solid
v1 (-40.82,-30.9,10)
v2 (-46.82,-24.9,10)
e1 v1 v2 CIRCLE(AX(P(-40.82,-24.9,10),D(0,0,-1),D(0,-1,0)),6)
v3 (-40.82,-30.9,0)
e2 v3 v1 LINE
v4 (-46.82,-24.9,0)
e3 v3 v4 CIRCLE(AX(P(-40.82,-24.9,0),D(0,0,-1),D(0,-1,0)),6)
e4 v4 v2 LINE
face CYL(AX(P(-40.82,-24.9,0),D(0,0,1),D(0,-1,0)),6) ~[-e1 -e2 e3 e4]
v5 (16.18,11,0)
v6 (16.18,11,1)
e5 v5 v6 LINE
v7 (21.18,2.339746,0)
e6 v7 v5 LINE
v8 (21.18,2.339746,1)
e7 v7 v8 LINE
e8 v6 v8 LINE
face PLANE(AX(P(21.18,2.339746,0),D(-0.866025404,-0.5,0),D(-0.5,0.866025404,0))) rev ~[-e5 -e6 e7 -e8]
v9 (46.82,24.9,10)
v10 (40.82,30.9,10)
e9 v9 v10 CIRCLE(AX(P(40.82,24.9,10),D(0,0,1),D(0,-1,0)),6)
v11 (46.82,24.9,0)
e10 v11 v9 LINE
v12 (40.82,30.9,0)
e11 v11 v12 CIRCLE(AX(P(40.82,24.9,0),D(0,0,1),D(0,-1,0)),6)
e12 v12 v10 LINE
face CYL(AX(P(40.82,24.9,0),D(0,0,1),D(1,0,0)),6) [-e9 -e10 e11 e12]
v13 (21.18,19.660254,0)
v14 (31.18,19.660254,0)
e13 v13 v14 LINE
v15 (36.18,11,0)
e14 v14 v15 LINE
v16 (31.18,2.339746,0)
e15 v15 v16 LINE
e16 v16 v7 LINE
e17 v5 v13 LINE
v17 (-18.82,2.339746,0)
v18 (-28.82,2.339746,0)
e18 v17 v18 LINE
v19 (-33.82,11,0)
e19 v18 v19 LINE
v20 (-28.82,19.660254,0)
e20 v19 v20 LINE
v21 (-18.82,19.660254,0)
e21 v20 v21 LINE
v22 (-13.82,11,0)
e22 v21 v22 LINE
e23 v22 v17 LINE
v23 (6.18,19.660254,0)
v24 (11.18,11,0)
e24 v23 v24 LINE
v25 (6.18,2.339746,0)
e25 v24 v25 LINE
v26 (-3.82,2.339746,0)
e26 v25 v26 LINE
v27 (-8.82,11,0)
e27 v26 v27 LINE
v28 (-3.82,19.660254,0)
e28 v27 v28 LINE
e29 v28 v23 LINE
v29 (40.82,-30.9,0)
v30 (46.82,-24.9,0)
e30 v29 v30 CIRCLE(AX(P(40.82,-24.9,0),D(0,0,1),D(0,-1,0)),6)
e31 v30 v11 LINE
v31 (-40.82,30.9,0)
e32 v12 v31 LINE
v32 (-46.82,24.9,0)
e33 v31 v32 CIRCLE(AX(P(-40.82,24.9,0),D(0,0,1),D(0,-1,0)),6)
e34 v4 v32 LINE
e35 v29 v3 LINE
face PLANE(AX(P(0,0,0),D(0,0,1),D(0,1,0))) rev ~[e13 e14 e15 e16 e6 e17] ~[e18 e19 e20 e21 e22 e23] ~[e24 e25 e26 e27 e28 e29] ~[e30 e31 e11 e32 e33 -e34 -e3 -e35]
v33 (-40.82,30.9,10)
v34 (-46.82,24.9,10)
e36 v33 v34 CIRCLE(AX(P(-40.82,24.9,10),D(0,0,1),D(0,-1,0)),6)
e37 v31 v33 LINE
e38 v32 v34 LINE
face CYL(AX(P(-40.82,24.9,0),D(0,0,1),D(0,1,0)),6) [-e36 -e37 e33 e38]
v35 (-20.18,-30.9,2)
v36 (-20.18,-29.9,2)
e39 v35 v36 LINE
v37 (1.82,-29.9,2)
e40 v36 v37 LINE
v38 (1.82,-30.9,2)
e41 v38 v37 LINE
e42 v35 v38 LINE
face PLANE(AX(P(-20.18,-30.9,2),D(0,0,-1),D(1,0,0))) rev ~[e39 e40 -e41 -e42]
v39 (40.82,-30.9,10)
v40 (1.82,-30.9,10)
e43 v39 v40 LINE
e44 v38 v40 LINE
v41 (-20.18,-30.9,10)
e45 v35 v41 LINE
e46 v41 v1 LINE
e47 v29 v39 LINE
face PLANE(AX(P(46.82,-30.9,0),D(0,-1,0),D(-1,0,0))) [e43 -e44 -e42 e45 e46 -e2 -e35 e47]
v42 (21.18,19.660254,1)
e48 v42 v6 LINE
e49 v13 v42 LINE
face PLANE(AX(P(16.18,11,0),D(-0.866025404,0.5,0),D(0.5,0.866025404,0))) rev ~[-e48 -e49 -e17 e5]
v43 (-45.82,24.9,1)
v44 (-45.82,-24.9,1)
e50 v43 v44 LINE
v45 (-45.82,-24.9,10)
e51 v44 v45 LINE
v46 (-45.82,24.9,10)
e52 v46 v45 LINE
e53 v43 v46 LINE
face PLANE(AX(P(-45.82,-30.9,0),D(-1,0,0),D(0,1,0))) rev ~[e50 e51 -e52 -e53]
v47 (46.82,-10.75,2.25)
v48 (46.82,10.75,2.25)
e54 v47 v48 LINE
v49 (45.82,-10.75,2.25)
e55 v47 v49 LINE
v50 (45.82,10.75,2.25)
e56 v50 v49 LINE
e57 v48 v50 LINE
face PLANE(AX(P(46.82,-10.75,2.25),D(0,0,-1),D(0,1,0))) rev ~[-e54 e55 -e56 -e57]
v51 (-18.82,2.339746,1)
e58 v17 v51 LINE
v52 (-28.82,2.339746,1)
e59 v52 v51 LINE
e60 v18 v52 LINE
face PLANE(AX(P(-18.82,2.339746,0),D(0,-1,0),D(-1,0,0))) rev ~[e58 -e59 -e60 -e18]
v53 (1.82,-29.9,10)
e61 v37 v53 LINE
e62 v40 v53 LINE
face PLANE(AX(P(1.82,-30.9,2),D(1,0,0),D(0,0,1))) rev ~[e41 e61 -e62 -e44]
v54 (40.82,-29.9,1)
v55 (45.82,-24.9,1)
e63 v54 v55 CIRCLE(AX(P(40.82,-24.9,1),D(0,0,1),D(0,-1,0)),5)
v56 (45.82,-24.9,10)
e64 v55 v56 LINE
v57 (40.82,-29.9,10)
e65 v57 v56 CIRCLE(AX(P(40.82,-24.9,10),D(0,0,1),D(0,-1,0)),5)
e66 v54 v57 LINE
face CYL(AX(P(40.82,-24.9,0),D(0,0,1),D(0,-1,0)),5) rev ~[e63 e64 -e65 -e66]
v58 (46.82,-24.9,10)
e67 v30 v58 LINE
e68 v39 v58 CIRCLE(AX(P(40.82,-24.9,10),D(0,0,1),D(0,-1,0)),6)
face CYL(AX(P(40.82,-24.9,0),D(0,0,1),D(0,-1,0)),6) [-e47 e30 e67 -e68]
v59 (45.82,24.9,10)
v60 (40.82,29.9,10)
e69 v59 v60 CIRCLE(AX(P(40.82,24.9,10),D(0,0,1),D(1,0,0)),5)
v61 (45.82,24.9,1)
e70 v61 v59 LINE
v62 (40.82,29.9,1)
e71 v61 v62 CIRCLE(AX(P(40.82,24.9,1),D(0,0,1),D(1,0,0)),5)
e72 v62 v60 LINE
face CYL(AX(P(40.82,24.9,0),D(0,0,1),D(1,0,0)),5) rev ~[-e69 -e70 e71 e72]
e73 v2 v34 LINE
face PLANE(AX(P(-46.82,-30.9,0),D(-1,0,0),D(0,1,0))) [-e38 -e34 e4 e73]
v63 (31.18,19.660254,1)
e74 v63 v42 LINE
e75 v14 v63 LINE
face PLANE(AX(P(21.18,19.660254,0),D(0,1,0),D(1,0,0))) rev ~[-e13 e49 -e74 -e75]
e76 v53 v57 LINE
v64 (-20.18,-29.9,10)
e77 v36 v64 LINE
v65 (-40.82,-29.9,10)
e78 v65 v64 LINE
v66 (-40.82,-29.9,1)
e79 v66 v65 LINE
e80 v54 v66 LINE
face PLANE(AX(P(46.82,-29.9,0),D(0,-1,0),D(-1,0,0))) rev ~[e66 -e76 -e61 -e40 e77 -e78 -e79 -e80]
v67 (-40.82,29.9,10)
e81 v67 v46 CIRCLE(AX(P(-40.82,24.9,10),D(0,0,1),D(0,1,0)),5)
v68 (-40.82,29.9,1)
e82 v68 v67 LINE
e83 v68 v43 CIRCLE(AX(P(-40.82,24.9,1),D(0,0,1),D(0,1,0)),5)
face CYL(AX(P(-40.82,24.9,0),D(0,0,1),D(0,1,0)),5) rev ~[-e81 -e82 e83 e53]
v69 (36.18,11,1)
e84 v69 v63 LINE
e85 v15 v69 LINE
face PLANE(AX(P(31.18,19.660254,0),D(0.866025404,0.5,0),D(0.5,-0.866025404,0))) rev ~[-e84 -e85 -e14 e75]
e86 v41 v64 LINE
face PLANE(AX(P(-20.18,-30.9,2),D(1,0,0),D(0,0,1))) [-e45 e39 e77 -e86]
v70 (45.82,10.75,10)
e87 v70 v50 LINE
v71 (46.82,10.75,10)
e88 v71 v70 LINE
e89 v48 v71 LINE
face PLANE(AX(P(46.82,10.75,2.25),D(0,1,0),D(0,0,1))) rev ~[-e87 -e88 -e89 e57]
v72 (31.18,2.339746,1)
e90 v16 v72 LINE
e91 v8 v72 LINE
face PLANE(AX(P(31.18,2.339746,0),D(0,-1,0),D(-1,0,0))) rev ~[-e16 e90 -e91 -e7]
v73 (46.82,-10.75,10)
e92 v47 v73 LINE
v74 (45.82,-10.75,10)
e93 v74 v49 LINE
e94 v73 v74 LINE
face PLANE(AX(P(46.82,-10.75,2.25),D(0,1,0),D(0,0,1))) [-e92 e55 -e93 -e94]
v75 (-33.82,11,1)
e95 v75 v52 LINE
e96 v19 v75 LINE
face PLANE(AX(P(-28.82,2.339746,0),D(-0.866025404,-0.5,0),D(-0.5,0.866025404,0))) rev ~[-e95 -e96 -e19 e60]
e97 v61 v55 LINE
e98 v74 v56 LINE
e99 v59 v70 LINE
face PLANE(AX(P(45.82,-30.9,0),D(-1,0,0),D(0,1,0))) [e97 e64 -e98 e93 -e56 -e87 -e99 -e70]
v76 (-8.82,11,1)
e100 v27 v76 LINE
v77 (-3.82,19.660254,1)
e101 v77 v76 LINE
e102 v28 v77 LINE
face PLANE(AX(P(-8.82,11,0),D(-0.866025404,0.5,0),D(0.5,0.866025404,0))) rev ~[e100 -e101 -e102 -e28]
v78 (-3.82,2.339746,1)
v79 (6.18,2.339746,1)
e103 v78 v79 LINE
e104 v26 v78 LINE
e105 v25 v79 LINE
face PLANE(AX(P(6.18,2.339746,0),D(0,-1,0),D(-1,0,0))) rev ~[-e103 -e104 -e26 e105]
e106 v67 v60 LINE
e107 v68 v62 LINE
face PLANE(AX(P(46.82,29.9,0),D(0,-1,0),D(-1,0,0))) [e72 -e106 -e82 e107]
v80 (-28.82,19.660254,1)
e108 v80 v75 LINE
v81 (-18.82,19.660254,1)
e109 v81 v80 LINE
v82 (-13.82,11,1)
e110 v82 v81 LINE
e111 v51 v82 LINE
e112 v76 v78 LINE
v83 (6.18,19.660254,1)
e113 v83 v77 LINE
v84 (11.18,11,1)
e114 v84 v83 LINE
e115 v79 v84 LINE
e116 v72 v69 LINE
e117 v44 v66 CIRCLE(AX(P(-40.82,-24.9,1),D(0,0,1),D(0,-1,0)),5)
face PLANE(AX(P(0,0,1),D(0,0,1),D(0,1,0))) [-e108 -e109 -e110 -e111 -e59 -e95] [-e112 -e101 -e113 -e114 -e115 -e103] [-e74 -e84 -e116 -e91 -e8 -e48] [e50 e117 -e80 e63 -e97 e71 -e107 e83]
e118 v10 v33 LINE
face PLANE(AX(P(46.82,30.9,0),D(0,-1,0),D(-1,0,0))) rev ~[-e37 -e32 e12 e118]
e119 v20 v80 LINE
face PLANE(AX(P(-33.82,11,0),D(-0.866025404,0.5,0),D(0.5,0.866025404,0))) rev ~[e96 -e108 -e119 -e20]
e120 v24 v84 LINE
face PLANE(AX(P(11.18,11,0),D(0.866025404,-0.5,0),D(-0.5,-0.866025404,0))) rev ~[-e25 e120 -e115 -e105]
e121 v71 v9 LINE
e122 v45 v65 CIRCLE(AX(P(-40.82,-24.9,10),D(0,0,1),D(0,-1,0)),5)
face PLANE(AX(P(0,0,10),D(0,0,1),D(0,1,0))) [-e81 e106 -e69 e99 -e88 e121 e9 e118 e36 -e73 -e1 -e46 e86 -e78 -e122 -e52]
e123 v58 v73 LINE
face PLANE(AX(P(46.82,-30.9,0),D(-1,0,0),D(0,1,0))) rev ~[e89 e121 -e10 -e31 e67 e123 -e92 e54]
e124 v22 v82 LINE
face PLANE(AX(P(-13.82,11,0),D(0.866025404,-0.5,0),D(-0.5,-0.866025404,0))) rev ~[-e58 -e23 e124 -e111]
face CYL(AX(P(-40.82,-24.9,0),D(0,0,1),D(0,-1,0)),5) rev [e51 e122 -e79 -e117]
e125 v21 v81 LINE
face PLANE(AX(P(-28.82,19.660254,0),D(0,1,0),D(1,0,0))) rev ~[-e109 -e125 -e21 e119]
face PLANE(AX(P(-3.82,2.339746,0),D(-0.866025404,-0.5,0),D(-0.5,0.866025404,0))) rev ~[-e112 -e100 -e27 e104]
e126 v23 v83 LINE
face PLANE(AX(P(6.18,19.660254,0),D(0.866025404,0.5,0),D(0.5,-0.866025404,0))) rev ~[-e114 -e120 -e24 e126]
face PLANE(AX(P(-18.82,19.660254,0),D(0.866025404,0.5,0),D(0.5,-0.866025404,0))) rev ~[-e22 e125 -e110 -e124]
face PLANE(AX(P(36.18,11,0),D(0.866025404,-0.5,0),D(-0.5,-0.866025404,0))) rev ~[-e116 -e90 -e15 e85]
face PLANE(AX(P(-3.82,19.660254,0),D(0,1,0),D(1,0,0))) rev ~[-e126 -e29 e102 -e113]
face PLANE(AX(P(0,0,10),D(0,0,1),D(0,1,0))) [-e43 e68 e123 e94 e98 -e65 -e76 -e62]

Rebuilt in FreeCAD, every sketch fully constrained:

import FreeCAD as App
import Part
import Sketcher
Q = App.Units.Quantity


def edges_at(feature, points):
    """Names of the edges that pass closest to the given points."""
    edges = feature.Shape.Edges
    near = lambda p: min(range(len(edges)), key=lambda i: edges[i].distToShape(Part.Vertex(*p))[0])
    return sorted({f"Edge{near(p) + 1}" for p in points})


def faces_at(feature, points):
    """Names of the faces that lie closest to the given points."""
    faces = feature.Shape.Faces
    near = lambda p: min(range(len(faces)), key=lambda i: faces[i].distToShape(Part.Vertex(*p))[0])
    return sorted({f"Face{near(p) + 1}" for p in points})


def add_polygon(sketch, points):
    """Adds a closed chain of lines whose ends are joined by coincident constraints."""
    first, n = sketch.GeometryCount, len(points)
    for a, b in zip(points, points[1:] + points[:1]):
        sketch.addGeometry(Part.LineSegment(App.Vector(*a, 0), App.Vector(*b, 0)), False)
    for i in range(n):
        sketch.addConstraint(Sketcher.Constraint("Coincident", first + i, 2, first + (i + 1) % n, 1))

doc = App.newDocument("Part")
body = doc.addObject("PartDesign::Body", "Body")

sketch1 = body.newObject("Sketcher::SketchObject", "Sketch")
sketch1.AttachmentSupport = (doc.getObject("XY_Plane"), [""])
sketch1.MapMode = "FlatFace"
add_polygon(sketch1, [(-46.82, -30.9), (46.82, -30.9), (46.82, 30.9), (-46.82, 30.9)])
sketch1.addConstraint([
    Sketcher.Constraint("Horizontal", 0),
    Sketcher.Constraint("Vertical", 1),
    Sketcher.Constraint("Horizontal", 2),
    Sketcher.Constraint("Vertical", 3),
    Sketcher.Constraint("Symmetric", 0, 2, 2, 2, -1, 1),
    Sketcher.Constraint("DistanceY", 1, 1, 1, 2, Q("61.8 mm")),
    Sketcher.Constraint("DistanceX", 0, 1, 0, 2, Q("93.64 mm")),
])
pad1 = body.newObject("PartDesign::Pad", "Pad")
pad1.Profile = sketch1
pad1.Length = 10
doc.recompute()

fillet = body.newObject("PartDesign::Fillet", "Fillet")
fillet.Base = (pad1, edges_at(pad1, [
    (46.82, 30.9, 5),
    (46.82, -30.9, 5),
    (-46.82, -30.9, 5),
    (-46.82, 30.9, 5),
]))
fillet.Radius = 6
doc.recompute()

thickness = body.newObject("PartDesign::Thickness", "Thickness")
thickness.Base = (fillet, faces_at(fillet, [(0, 0, 10)]))
thickness.Value = 1
thickness.Reversed = True
thickness.Join = "Intersection"

sketch2 = body.newObject("Sketcher::SketchObject", "Sketch001")
sketch2.AttachmentSupport = (doc.getObject("YZ_Plane"), [""])
sketch2.MapMode = "FlatFace"
sketch2.AttachmentOffset = App.Placement(App.Vector(0, 0, 46.82), App.Rotation())
add_polygon(sketch2, [(-10.75, 17.75), (-10.75, 2.25), (10.75, 2.25), (10.75, 17.75)])
sketch2.addConstraint([
    Sketcher.Constraint("Vertical", 0),
    Sketcher.Constraint("Horizontal", 1),
    Sketcher.Constraint("Vertical", 2),
    Sketcher.Constraint("Horizontal", 3),
    Sketcher.Constraint("DistanceX", 1, 1, 1, 2, Q("21.5 mm")),
    Sketcher.Constraint("DistanceY", 0, 2, 0, 1, Q("15.5 mm")),
    Sketcher.Constraint("DistanceX", 0, 2, -1, 1, Q("10.75 mm")),
    Sketcher.Constraint("DistanceY", -1, 1, 0, 2, Q("2.25 mm")),
])
pocket1 = body.newObject("PartDesign::Pocket", "Pocket")
pocket1.Profile = sketch2
pocket1.Length = 6

sketch3 = body.newObject("Sketcher::SketchObject", "Sketch002")
sketch3.AttachmentSupport = (doc.getObject("XZ_Plane"), [""])
sketch3.MapMode = "FlatFace"
sketch3.AttachmentOffset = App.Placement(App.Vector(0, 0, 30.9), App.Rotation())
add_polygon(sketch3, [(-20.18, 10), (-20.18, 2), (1.82, 2), (1.82, 10)])
sketch3.addConstraint([
    Sketcher.Constraint("Vertical", 0),
    Sketcher.Constraint("Horizontal", 1),
    Sketcher.Constraint("Vertical", 2),
    Sketcher.Constraint("Horizontal", 3),
    Sketcher.Constraint("DistanceX", 1, 1, 1, 2, Q("22 mm")),
    Sketcher.Constraint("DistanceY", 0, 2, 0, 1, Q("8 mm")),
    Sketcher.Constraint("DistanceY", -1, 1, 0, 2, Q("2 mm")),
    Sketcher.Constraint("DistanceX", 0, 2, -1, 1, Q("20.18 mm")),
])
pocket2 = body.newObject("PartDesign::Pocket", "Pocket001")
pocket2.Profile = sketch3
pocket2.Length = 6

sketch4 = body.newObject("Sketcher::SketchObject", "Sketch003")
sketch4.AttachmentSupport = (doc.getObject("XY_Plane"), [""])
sketch4.MapMode = "FlatFace"
add_polygon(sketch4, [(-18.82, 2.339746), (-28.82, 2.339746), (-33.82, 11), (-28.82, 19.660254), (-18.82, 19.660254), (-13.82, 11)])
sketch4.addConstraint([
    Sketcher.Constraint("Horizontal", 0),
    Sketcher.Constraint("Horizontal", 3),
    Sketcher.Constraint("Parallel", 1, 4),
    Sketcher.Constraint("Parallel", 2, 5),
    Sketcher.Constraint("Horizontal", 1, 2, 4, 2),
    Sketcher.Constraint("Vertical", 0, 2, 2, 2),
    Sketcher.Constraint("Vertical", 3, 2, 5, 2),
    Sketcher.Constraint("DistanceX", 0, 2, 0, 1, Q("10 mm")),
    Sketcher.Constraint("Angle", 1, Q("120 deg")),
    Sketcher.Constraint("Distance", 1, Q("10 mm")),
    Sketcher.Constraint("DistanceY", -1, 1, 1, 2, Q("11 mm")),
    Sketcher.Constraint("DistanceX", 0, 2, -1, 1, Q("28.82 mm")),
])
pocket3 = body.newObject("PartDesign::Pocket", "Pocket002")
pocket3.Profile = sketch4
pocket3.Length = 6
pocket3.Reversed = True
doc.recompute()

linearpattern = body.newObject("PartDesign::LinearPattern", "LinearPattern")
linearpattern.Originals = [pocket3]
linearpattern.Direction = (doc.getObject("X_Axis"), [""])
linearpattern.Mode = "offset"
linearpattern.Offset = 25
linearpattern.Occurrences = 3
body.Tip = linearpattern

doc.recompute()
